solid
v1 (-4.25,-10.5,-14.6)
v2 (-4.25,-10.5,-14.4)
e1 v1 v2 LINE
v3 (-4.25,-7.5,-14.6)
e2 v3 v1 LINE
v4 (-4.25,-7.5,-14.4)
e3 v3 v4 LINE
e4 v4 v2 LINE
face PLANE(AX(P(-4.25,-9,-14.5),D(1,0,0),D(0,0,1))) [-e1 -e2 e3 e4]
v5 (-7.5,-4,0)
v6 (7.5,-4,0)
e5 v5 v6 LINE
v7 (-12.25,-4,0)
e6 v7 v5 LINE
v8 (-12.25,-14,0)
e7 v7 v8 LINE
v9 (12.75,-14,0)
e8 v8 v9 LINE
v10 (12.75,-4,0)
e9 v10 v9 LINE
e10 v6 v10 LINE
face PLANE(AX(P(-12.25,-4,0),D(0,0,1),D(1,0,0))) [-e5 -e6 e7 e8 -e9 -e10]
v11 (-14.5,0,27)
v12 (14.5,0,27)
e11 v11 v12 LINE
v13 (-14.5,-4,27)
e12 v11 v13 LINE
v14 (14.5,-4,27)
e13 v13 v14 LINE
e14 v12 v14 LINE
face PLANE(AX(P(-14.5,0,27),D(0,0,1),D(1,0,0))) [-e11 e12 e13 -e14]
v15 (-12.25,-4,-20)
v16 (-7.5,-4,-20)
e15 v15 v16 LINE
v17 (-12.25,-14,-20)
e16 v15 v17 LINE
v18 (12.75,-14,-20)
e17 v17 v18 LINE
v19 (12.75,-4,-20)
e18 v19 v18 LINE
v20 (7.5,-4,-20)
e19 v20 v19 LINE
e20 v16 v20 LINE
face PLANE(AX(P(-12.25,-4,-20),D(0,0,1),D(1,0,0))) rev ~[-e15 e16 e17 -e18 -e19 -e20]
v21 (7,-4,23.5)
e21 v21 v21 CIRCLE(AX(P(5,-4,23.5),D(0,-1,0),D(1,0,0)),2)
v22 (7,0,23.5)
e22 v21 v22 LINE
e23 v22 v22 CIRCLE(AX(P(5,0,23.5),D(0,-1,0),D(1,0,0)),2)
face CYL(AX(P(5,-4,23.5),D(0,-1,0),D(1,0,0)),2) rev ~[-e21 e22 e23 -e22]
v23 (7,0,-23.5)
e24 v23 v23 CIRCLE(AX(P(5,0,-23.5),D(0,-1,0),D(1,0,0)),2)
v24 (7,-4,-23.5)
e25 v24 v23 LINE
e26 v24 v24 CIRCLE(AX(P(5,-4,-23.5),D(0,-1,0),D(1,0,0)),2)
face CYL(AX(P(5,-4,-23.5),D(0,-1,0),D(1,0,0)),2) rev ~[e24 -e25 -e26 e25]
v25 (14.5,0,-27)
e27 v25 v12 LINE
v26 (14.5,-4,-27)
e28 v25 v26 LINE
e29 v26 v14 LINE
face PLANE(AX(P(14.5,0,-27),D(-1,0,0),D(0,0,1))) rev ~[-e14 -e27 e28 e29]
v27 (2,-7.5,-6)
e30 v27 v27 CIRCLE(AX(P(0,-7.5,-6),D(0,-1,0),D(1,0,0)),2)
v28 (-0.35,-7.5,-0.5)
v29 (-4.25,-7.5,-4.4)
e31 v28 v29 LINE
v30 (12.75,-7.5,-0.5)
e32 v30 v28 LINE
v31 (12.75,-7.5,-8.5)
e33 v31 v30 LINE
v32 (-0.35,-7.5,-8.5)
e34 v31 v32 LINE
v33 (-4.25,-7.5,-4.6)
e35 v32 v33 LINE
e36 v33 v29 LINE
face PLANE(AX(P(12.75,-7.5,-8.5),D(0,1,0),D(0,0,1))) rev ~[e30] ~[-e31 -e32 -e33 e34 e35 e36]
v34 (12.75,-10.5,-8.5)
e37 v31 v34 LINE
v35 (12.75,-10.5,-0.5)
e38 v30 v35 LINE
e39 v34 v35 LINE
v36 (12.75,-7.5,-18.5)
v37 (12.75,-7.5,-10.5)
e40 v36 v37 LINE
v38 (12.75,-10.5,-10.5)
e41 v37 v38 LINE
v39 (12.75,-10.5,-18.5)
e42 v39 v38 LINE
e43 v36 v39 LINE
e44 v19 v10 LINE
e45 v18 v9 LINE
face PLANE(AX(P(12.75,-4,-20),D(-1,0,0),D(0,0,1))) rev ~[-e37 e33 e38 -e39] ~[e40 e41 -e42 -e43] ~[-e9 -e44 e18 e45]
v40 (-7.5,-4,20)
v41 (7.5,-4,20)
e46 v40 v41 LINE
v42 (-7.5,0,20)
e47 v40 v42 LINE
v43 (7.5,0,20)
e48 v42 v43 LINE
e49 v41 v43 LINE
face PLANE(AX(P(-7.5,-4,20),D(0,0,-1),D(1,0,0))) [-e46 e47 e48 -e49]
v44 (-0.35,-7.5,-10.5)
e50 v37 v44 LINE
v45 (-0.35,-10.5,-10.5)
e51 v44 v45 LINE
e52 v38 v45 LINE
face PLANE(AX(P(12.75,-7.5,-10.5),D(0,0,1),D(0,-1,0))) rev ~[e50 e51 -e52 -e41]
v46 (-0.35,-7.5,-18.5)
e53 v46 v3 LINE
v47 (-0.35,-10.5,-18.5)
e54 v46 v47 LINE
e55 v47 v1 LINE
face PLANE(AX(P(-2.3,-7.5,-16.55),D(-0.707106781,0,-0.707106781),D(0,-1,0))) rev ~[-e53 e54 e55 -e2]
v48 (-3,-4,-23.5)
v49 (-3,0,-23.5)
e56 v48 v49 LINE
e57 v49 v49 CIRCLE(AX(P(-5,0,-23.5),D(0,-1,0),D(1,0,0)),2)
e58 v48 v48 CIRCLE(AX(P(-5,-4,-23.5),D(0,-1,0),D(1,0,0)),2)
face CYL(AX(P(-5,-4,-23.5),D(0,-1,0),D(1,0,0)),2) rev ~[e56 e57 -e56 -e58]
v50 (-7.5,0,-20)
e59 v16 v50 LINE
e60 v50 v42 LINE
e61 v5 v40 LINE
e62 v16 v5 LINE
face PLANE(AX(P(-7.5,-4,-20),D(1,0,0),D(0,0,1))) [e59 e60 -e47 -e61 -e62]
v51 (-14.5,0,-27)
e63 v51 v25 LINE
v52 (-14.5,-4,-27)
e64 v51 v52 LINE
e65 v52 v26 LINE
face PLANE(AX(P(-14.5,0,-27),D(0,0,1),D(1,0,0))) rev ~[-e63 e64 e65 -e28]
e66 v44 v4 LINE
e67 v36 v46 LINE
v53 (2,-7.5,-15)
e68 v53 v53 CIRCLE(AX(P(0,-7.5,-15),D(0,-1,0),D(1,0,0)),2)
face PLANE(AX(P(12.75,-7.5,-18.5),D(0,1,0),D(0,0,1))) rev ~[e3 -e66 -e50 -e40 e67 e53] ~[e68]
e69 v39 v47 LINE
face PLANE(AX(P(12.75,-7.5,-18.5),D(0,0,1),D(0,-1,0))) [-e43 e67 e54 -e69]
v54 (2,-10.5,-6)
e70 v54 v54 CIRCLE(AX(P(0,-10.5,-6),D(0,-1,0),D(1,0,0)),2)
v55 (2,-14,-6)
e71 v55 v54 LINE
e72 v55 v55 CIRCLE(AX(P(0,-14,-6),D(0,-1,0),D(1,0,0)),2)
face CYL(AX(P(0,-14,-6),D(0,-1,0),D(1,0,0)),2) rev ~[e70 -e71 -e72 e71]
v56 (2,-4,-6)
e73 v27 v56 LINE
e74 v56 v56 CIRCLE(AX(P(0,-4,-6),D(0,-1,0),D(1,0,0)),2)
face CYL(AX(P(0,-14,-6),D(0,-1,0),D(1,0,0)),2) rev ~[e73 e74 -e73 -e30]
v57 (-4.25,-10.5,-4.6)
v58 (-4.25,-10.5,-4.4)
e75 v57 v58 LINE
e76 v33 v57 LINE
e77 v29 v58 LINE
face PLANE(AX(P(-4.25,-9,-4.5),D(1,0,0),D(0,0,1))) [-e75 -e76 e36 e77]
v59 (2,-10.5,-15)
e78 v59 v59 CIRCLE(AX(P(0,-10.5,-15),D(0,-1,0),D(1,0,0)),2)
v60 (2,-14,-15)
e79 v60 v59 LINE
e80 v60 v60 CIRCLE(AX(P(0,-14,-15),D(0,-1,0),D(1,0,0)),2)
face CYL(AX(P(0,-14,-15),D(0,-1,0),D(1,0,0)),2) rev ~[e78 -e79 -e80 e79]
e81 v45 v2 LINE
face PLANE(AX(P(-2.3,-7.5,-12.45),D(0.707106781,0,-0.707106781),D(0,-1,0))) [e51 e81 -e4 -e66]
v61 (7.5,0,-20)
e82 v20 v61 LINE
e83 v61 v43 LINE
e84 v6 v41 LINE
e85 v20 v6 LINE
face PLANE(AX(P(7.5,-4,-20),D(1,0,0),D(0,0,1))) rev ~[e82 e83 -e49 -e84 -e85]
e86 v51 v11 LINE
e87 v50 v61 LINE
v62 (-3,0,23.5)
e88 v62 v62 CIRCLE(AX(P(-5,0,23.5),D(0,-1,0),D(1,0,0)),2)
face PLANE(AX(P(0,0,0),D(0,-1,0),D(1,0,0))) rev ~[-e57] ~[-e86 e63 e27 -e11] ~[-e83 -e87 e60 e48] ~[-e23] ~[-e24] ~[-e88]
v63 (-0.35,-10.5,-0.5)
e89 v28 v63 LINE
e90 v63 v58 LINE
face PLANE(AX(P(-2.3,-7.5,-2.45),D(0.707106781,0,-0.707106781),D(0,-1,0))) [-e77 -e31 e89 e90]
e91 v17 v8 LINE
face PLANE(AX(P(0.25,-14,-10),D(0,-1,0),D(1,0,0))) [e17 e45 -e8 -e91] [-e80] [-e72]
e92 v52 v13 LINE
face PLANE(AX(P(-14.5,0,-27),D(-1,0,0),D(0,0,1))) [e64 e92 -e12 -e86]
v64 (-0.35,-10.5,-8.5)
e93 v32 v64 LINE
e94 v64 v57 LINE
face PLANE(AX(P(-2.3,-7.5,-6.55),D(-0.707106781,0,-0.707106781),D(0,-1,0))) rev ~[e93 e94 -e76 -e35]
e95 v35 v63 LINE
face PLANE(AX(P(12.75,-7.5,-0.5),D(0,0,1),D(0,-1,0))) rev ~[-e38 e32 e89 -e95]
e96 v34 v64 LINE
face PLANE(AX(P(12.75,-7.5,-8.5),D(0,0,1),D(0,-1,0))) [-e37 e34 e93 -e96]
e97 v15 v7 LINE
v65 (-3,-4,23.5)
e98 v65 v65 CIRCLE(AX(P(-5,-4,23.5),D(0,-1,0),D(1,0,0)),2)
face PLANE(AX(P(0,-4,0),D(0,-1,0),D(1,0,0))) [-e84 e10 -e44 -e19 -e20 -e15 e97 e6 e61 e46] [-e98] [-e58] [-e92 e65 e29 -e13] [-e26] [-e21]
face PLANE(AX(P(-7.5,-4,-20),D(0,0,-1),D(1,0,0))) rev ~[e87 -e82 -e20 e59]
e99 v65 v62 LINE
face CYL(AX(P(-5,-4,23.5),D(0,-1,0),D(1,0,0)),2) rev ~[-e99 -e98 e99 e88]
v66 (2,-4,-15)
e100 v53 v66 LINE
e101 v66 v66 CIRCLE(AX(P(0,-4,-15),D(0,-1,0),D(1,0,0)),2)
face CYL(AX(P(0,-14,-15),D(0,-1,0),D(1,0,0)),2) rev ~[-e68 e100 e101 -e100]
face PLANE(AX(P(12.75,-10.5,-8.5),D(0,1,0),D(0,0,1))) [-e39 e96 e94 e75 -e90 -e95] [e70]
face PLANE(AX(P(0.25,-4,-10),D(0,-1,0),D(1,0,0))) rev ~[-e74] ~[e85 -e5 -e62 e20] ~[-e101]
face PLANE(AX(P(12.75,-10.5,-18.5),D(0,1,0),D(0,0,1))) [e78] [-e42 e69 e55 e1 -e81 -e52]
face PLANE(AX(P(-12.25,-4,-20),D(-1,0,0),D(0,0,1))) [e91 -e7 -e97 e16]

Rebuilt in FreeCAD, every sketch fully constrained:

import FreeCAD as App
import Part
import Sketcher

V = App.Vector


def edges_at(feature, points):
    """Names of the edges that pass closest to the given points."""
    edges = feature.Shape.Edges
    near = lambda p: min(range(len(edges)), key=lambda i: edges[i].distToShape(Part.Vertex(*p))[0])
    return sorted({f"Edge{near(p) + 1}" for p in points})


def add_polygon(sketch, points):
    """Adds a closed chain of lines whose ends are joined by coincident constraints."""
    first, n = sketch.GeometryCount, len(points)
    for a, b in zip(points, points[1:] + points[:1]):
        sketch.addGeometry(Part.LineSegment(App.Vector(*a, 0), App.Vector(*b, 0)), False)
    for i in range(n):
        sketch.addConstraint(Sketcher.Constraint("Coincident", first + i, 2, first + (i + 1) % n, 1))

doc = App.newDocument("Part")
body = doc.addObject("PartDesign::Body", "Body")

# Sketch on XZ plane
sketch1 = body.newObject("Sketcher::SketchObject", "Sketch")
sketch1.AttachmentSupport = (doc.getObject("XZ_Plane"), [""])
sketch1.MapMode = "FlatFace"
add_polygon(sketch1, [(-14.5, 27), (-14.5, -27), (14.5, -27), (14.5, 27)])  # lines 0-3
sketch1.addConstraint([
    Sketcher.Constraint("Vertical", 0),
    Sketcher.Constraint("Horizontal", 1),
    Sketcher.Constraint("Vertical", 2),
    Sketcher.Constraint("Horizontal", 3),
    Sketcher.Constraint("Symmetric", 0, 2, 2, 2, -1, 1),
    Sketcher.Constraint("DistanceX", 1, 1, 1, 2, 29.0),
    Sketcher.Constraint("DistanceY", 0, 2, 0, 1, 54.0),
])
pad1 = body.newObject("PartDesign::Pad", "Pad")
pad1.Profile = sketch1
pad1.Length = 4

# Sketch on XZ plane
sketch2 = body.newObject("Sketcher::SketchObject", "Sketch001")
sketch2.AttachmentSupport = (doc.getObject("XZ_Plane"), [""])
sketch2.MapMode = "FlatFace"
sketch2.AttachmentOffset = App.Placement(V(0, 0, 4), App.Rotation())
add_polygon(sketch2, [(-7.5, 20), (-7.5, -20), (7.5, -20), (7.5, 20)])  # lines 0-3
sketch2.addConstraint([
    Sketcher.Constraint("Vertical", 0),
    Sketcher.Constraint("Horizontal", 1),
    Sketcher.Constraint("Vertical", 2),
    Sketcher.Constraint("Horizontal", 3),
    Sketcher.Constraint("Symmetric", 0, 2, 2, 2, -1, 1),
    Sketcher.Constraint("DistanceX", 1, 1, 1, 2, 15.0),
    Sketcher.Constraint("DistanceY", 0, 2, 0, 1, 40.0),
])
pocket1 = body.newObject("PartDesign::Pocket", "Pocket")
pocket1.Profile = sketch2
pocket1.Length = 5

# Sketch on XZ plane
sketch3 = body.newObject("Sketcher::SketchObject", "Sketch002")
sketch3.AttachmentSupport = (doc.getObject("XZ_Plane"), [""])
sketch3.MapMode = "FlatFace"
sketch3.AttachmentOffset = App.Placement(V(0, 0, 4), App.Rotation())
sketch3.addGeometry([
    Part.Circle(V(-5, 23.5, 0), V(0, 0, 1), 2),
    Part.Circle(V(5, 23.5, 0), V(0, 0, 1), 2),
    Part.Circle(V(-5, -23.5, 0), V(0, 0, 1), 2),
    Part.Circle(V(5, -23.5, 0), V(0, 0, 1), 2),
], False)
sketch3.addConstraint([
    Sketcher.Constraint("Equal", 0, 1),
    Sketcher.Constraint("Equal", 1, 2),
    Sketcher.Constraint("Equal", 2, 3),
    Sketcher.Constraint("Symmetric", 1, 3, 2, 3, -1, 1),
    Sketcher.Constraint("Symmetric", 0, 3, 3, 3, -1, 1),
    Sketcher.Constraint("Symmetric", 0, 3, 1, 3, -2),
    Sketcher.Constraint("Diameter", 0, 4.0),
    Sketcher.Constraint("DistanceX", 0, 3, -1, 1, 5.0),
    Sketcher.Constraint("DistanceY", 2, 3, 0, 3, 47.0),
])
pocket2 = body.newObject("PartDesign::Pocket", "Pocket001")
pocket2.Profile = sketch3
pocket2.Type = "ThroughAll"

# Sketch on XZ plane
sketch4 = body.newObject("Sketcher::SketchObject", "Sketch003")
sketch4.AttachmentSupport = (doc.getObject("XZ_Plane"), [""])
sketch4.MapMode = "FlatFace"
sketch4.AttachmentOffset = App.Placement(V(0, 0, 4), App.Rotation())
add_polygon(sketch4, [(-12.25, 0), (-12.25, -20), (12.75, -20), (12.75, 0)])  # lines 0-3
sketch4.addConstraint([
    Sketcher.Constraint("Vertical", 0),
    Sketcher.Constraint("Horizontal", 1),
    Sketcher.Constraint("Vertical", 2),
    Sketcher.Constraint("Horizontal", 3),
    Sketcher.Constraint("PointOnObject", 2, 2, -1),
    Sketcher.Constraint("DistanceX", 1, 1, 1, 2, 25.0),
    Sketcher.Constraint("DistanceY", 0, 2, 0, 1, 20.0),
    Sketcher.Constraint("DistanceX", 0, 2, -1, 1, 12.25),
])
pad2 = body.newObject("PartDesign::Pad", "Pad001")
pad2.Profile = sketch4
pad2.Length = 10

# Sketch on XZ plane
sketch5 = body.newObject("Sketcher::SketchObject", "Sketch004")
sketch5.AttachmentSupport = (doc.getObject("XZ_Plane"), [""])
sketch5.MapMode = "FlatFace"
sketch5.AttachmentOffset = App.Placement(V(0, 0, 14), App.Rotation())
sketch5.addGeometry([
    Part.Circle(V(0, -6, 0), V(0, 0, 1), 2),
    Part.Circle(V(0, -15, 0), V(0, 0, 1), 2),
], False)
sketch5.addConstraint([
    Sketcher.Constraint("Equal", 0, 1),
    Sketcher.Constraint("PointOnObject", 0, 3, -2),
    Sketcher.Constraint("PointOnObject", 1, 3, -2),
    Sketcher.Constraint("Diameter", 0, 4.0),
    Sketcher.Constraint("DistanceY", 0, 3, -1, 1, 6.0),
    Sketcher.Constraint("DistanceY", 1, 3, -1, 1, 15.0),
])
pocket3 = body.newObject("PartDesign::Pocket", "Pocket002")
pocket3.Profile = sketch5
pocket3.Type = "ThroughAll"

# Sketch on YZ plane
sketch6 = body.newObject("Sketcher::SketchObject", "Sketch005")
sketch6.AttachmentSupport = (doc.getObject("YZ_Plane"), [""])
sketch6.MapMode = "FlatFace"
sketch6.AttachmentOffset = App.Placement(V(0, 0, 12.75), App.Rotation())
add_polygon(sketch6, [(-10.5, -18.5), (-7.5, -18.5), (-7.5, -10.5), (-10.5, -10.5)])  # lines 0-3
add_polygon(sketch6, [(-10.5, -8.5), (-7.5, -8.5), (-7.5, -0.5), (-10.5, -0.5)])  # lines 4-7
sketch6.addConstraint([
    Sketcher.Constraint("Horizontal", 0),
    Sketcher.Constraint("Vertical", 1),
    Sketcher.Constraint("Horizontal", 2),
    Sketcher.Constraint("Vertical", 3),
    Sketcher.Constraint("Horizontal", 4),
    Sketcher.Constraint("Vertical", 5),
    Sketcher.Constraint("Horizontal", 6),
    Sketcher.Constraint("Vertical", 7),
    Sketcher.Constraint("Vertical", 1, 2, 4, 2),
    Sketcher.Constraint("Vertical", 3, 2, 6, 2),
    Sketcher.Constraint("Equal", 3, 5),
    Sketcher.Constraint("DistanceX", 0, 1, 0, 2, 3.0),
    Sketcher.Constraint("DistanceY", 1, 1, 1, 2, 8.0),
    Sketcher.Constraint("DistanceY", 1, 2, 4, 2, 2.0),
    Sketcher.Constraint("DistanceX", 0, 2, -1, 1, 7.5),
    Sketcher.Constraint("DistanceY", 0, 2, -1, 1, 18.5),
])
pocket4 = body.newObject("PartDesign::Pocket", "Pocket003")
pocket4.Profile = sketch6
pocket4.Length = 17
doc.recompute()

chamfer = body.newObject("PartDesign::Chamfer", "Chamfer")
chamfer.Base = (pocket4, edges_at(pocket4, [
    (-4.25, -9, -18.5),
    (-4.25, -9, -0.5),
    (-4.25, -9, -8.5),
    (-4.25, -9, -10.5),
]))
chamfer.Size = 3.9

doc.recompute()
